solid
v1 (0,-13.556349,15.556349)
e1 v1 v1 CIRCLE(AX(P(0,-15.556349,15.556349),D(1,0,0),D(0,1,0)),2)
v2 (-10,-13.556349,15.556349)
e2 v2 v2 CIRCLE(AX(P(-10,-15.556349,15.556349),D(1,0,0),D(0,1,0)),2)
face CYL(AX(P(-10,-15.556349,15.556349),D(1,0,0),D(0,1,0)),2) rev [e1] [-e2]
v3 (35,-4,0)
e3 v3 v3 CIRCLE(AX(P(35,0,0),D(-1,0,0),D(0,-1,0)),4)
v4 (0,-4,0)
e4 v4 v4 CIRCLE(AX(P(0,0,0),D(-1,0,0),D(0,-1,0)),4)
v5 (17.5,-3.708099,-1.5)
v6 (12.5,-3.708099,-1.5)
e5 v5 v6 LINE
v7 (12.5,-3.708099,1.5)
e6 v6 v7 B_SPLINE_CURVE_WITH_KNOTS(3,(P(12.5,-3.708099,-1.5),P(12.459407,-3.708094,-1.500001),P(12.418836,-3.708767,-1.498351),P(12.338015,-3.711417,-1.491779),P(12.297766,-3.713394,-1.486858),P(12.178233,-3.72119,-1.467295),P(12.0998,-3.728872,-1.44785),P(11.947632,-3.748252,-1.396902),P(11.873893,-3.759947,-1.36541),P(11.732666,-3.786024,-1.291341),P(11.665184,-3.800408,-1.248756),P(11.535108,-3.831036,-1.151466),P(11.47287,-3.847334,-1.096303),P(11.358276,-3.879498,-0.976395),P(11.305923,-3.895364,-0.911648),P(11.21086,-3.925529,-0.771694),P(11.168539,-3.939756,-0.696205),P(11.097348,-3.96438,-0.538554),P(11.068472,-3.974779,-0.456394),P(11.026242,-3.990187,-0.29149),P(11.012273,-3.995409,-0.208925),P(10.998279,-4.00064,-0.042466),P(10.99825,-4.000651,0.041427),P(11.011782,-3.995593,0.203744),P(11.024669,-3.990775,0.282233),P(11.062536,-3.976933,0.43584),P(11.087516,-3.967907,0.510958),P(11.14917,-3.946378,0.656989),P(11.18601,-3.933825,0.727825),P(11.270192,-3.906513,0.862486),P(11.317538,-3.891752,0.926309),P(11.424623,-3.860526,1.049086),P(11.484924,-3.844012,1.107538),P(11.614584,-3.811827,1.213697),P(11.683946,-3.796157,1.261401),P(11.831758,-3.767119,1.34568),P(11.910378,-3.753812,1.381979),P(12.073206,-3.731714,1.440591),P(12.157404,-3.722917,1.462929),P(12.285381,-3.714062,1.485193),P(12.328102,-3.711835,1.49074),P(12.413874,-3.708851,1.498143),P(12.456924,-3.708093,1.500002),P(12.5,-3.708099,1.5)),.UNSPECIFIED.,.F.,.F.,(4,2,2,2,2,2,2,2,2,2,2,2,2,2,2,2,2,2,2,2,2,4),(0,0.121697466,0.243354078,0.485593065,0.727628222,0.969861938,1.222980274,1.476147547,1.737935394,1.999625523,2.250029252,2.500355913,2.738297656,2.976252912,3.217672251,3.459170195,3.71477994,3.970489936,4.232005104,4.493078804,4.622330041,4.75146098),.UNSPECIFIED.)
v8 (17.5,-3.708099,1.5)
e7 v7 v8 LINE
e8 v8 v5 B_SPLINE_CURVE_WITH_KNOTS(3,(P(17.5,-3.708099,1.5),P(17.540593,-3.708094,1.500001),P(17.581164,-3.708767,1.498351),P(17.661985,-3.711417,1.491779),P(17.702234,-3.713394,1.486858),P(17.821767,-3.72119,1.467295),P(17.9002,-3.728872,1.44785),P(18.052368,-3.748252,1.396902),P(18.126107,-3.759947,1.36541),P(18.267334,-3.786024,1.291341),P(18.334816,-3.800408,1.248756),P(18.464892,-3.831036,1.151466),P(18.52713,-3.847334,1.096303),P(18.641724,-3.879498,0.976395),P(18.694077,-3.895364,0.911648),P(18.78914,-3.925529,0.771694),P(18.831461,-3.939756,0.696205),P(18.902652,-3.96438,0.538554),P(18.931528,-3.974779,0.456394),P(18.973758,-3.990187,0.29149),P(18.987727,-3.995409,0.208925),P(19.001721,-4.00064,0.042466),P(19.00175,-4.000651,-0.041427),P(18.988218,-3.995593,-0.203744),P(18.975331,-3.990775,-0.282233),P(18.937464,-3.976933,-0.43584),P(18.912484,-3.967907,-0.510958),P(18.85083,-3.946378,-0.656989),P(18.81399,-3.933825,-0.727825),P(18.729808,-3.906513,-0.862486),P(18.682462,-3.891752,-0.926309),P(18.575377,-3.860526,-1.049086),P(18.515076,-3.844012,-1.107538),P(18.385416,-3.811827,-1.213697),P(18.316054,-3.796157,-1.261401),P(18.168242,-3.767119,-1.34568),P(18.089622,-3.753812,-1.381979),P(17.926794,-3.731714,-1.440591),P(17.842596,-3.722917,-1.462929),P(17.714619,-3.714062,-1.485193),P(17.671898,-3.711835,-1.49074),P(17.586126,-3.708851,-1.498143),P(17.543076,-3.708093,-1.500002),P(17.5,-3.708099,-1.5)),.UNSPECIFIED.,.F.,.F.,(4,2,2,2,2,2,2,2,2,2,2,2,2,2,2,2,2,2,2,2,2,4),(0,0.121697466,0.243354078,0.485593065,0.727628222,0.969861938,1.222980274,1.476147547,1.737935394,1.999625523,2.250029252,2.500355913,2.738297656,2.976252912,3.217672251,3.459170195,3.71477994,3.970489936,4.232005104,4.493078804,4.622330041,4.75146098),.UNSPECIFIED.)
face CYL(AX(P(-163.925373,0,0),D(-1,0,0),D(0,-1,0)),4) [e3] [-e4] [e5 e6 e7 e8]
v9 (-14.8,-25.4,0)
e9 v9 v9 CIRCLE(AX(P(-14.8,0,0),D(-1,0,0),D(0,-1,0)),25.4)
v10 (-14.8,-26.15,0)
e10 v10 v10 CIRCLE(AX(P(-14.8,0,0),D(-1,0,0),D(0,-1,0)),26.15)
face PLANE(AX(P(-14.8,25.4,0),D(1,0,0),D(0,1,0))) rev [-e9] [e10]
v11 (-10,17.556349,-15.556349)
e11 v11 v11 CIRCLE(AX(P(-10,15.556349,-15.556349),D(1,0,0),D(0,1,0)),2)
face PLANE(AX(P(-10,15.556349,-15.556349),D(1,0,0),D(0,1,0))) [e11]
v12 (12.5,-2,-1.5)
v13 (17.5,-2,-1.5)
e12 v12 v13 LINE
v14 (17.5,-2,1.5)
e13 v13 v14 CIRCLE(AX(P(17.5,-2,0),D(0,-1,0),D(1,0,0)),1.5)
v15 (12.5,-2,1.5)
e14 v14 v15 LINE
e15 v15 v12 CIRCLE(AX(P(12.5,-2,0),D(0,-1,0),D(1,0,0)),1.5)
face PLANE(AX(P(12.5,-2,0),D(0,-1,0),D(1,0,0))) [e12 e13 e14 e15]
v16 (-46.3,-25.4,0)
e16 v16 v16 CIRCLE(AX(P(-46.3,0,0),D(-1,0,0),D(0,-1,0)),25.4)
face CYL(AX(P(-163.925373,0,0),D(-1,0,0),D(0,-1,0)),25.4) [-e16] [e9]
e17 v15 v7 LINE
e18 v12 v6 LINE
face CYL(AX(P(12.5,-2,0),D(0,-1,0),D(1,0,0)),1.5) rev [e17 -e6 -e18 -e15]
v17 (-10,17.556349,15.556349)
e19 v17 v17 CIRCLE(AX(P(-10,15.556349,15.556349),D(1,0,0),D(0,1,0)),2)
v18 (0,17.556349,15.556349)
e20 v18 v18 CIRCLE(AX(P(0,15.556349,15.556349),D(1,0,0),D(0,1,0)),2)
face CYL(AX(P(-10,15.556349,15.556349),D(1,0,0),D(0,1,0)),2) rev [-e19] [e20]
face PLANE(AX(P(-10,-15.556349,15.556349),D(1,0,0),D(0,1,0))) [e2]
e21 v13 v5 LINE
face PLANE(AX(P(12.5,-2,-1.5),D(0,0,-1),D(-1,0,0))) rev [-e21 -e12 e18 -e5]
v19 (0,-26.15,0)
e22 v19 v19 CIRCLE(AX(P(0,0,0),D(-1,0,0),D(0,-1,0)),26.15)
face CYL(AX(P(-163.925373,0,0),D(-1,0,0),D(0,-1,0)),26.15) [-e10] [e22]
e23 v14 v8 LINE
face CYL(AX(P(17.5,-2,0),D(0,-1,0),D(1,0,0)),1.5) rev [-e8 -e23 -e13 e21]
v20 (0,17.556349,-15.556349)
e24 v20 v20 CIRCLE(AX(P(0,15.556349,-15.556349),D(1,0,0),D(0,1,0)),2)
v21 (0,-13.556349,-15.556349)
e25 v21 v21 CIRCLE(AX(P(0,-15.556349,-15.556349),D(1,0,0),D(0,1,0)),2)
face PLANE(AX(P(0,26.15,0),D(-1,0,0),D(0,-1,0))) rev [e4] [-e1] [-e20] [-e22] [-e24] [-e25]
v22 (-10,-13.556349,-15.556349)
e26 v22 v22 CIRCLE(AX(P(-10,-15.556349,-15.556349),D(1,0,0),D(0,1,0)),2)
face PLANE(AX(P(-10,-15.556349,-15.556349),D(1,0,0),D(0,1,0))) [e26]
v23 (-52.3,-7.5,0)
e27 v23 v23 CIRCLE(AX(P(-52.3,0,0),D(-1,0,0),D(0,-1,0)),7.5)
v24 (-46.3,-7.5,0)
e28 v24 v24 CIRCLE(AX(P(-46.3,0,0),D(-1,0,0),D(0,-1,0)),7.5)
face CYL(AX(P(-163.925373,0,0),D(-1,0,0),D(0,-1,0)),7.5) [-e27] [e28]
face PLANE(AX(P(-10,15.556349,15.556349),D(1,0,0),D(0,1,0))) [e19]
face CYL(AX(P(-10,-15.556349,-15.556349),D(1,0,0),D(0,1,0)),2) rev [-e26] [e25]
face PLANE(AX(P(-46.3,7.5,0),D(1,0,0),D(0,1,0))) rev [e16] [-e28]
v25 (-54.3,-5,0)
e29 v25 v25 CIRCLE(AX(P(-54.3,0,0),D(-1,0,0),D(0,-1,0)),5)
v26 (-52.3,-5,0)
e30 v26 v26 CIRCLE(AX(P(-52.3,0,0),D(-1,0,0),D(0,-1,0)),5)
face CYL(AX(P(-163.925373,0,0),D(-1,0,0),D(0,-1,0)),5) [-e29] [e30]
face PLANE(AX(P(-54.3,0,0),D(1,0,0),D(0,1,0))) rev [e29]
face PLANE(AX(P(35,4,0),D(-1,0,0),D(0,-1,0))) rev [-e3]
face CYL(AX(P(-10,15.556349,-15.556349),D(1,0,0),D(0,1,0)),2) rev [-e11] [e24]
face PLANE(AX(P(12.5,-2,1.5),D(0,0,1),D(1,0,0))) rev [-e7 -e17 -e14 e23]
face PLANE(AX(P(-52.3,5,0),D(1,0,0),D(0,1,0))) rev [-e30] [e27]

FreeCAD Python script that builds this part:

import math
import FreeCAD as App
import Part
import Sketcher
from FreeCAD import Vector


def add_polygon(sketch, points):
    """Adds a closed chain of lines whose ends are joined by coincident constraints."""
    first, n = sketch.GeometryCount, len(points)
    for a, b in zip(points, points[1:] + points[:1]):
        sketch.addGeometry(Part.LineSegment(App.Vector(*a, 0), App.Vector(*b, 0)), False)
    for i in range(n):
        sketch.addConstraint(Sketcher.Constraint("Coincident", first + i, 2, first + (i + 1) % n, 1))

doc = App.newDocument("Part")
body = doc.addObject("PartDesign::Body", "Body")

# Sketch on XY plane
sketch1 = doc.addObject("Sketcher::SketchObject", "Sketch")
body.addObject(sketch1)
sketch1.AttachmentSupport = (doc.XY_Plane, [""])
sketch1.MapMode = "FlatFace"
add_polygon(sketch1, [(-54.3, 5), (-54.3, 0), (35, 0), (35, 4), (0, 4), (0, 26.15), (-14.8, 26.15), (-14.8, 25.4), (-46.3, 25.4), (-46.3, 7.5), (-52.3, 7.5), (-52.3, 5)])  # lines 0-11
sketch1.addConstraint([
    Sketcher.Constraint("Vertical", 0),
    Sketcher.Constraint("Horizontal", 1),
    Sketcher.Constraint("Vertical", 2),
    Sketcher.Constraint("Horizontal", 3),
    Sketcher.Constraint("Vertical", 4),
    Sketcher.Constraint("Horizontal", 5),
    Sketcher.Constraint("Vertical", 6),
    Sketcher.Constraint("Horizontal", 7),
    Sketcher.Constraint("Vertical", 8),
    Sketcher.Constraint("Horizontal", 9),
    Sketcher.Constraint("Vertical", 10),
    Sketcher.Constraint("Horizontal", 11),
    Sketcher.Constraint("PointOnObject", 0, 2, -1),
    Sketcher.Constraint("PointOnObject", 3, 2, -2),
    Sketcher.Constraint("DistanceX", 3, 2, 3, 1, 35.0),
    Sketcher.Constraint("DistanceX", 9, 2, 9, 1, 6.0),
    Sketcher.Constraint("DistanceX", 11, 2, 11, 1, 2.0),
    Sketcher.Constraint("DistanceY", 0, 2, 0, 1, 5.0),
    Sketcher.Constraint("DistanceY", 2, 1, 2, 2, 4.0),
    Sketcher.Constraint("DistanceX", 1, 1, 1, 2, 89.3),
    Sketcher.Constraint("DistanceX", 5, 2, 5, 1, 14.8),
    Sketcher.Constraint("DistanceY", 8, 2, 8, 1, 17.9),
    Sketcher.Constraint("DistanceY", 10, 2, 10, 1, 2.5),
    Sketcher.Constraint("DistanceY", 4, 1, 4, 2, 22.15),
])
revolution = doc.addObject("PartDesign::Revolution", "Revolution")
body.addObject(revolution)
revolution.Profile = sketch1
revolution.ReferenceAxis = (sketch1, ["H_Axis"])
revolution.Angle = 360

# Sketch on YZ plane
sketch2 = doc.addObject("Sketcher::SketchObject", "Sketch001")
body.addObject(sketch2)
sketch2.AttachmentSupport = (doc.YZ_Plane, [""])
sketch2.MapMode = "FlatFace"
sketch2.addGeometry([
    Part.Circle(Vector(-15.556349, 15.556349, 0), Vector(0, 0, 1), 2),
    Part.Circle(Vector(15.556349, 15.556349, 0), Vector(0, 0, 1), 2),
    Part.Circle(Vector(15.556349, -15.556349, 0), Vector(0, 0, 1), 2),
    Part.Circle(Vector(-15.556349, -15.556349, 0), Vector(0, 0, 1), 2),
], False)
sketch2.addConstraint([
    Sketcher.Constraint("Equal", 0, 1),
    Sketcher.Constraint("Equal", 1, 2),
    Sketcher.Constraint("Equal", 2, 3),
    Sketcher.Constraint("Symmetric", 0, 3, 2, 3, -1, 1),
    Sketcher.Constraint("Symmetric", 1, 3, 3, 3, -1, 1),
    Sketcher.Constraint("Symmetric", 0, 3, 1, 3, -2),
    Sketcher.Constraint("Diameter", 0, 4.0),
    Sketcher.Constraint("DistanceX", 0, 3, 1, 3, 31.112698),
    Sketcher.Constraint("DistanceY", 2, 3, 1, 3, 31.112698),
])
pocket1 = doc.addObject("PartDesign::Pocket", "Pocket")
body.addObject(pocket1)
pocket1.Profile = sketch2
pocket1.Length = 10

# Sketch on XZ plane
sketch3 = doc.addObject("Sketcher::SketchObject", "Sketch002")
body.addObject(sketch3)
sketch3.AttachmentSupport = (doc.XZ_Plane, [""])
sketch3.MapMode = "FlatFace"
sketch3.AttachmentOffset = App.Placement(Vector(0, 0, 4), App.Rotation())
sketch3.addGeometry([
    Part.LineSegment(Vector(17.5, 1.5, 0), Vector(12.5, 1.5, 0)),
    Part.ArcOfCircle(Part.Circle(Vector(12.5, 0, 0), Vector(0, 0, 1), 1.5), math.radians(90), math.radians(270)),
    Part.LineSegment(Vector(12.5, -1.5, 0), Vector(17.5, -1.5, 0)),
    Part.ArcOfCircle(Part.Circle(Vector(17.5, 0, 0), Vector(0, 0, 1), 1.5), math.radians(-90), math.radians(90)),
], False)
sketch3.addConstraint([
    Sketcher.Constraint("Tangent", 0, 2, 1, 1),
    Sketcher.Constraint("Tangent", 1, 2, 2, 1),
    Sketcher.Constraint("Tangent", 2, 2, 3, 1),
    Sketcher.Constraint("Tangent", 3, 2, 0, 1),
    Sketcher.Constraint("Horizontal", 0),
    Sketcher.Constraint("Horizontal", 2),
    Sketcher.Constraint("PointOnObject", 1, 3, -1),
    Sketcher.Constraint("Radius", 1, 1.5),
    Sketcher.Constraint("DistanceX", 0, 2, 0, 1, 5.0),
    Sketcher.Constraint("DistanceX", -1, 1, 1, 3, 12.5),
])
pocket2 = doc.addObject("PartDesign::Pocket", "Pocket001")
body.addObject(pocket2)
pocket2.Profile = sketch3
pocket2.Length = 2

doc.recompute()
